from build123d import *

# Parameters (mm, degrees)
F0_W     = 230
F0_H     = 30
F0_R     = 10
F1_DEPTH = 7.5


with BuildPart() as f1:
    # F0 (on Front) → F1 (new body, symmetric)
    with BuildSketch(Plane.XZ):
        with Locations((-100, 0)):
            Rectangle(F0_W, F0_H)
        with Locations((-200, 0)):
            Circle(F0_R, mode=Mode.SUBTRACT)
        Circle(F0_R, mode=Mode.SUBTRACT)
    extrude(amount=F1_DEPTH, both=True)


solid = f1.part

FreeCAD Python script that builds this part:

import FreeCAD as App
import Part
import Sketcher

V = App.Vector


def add_polygon(sketch, points):
    """Adds a closed chain of lines whose ends are joined by coincident constraints."""
    first, n = sketch.GeometryCount, len(points)
    for a, b in zip(points, points[1:] + points[:1]):
        sketch.addGeometry(Part.LineSegment(App.Vector(*a, 0), App.Vector(*b, 0)), False)
    for i in range(n):
        sketch.addConstraint(Sketcher.Constraint("Coincident", first + i, 2, first + (i + 1) % n, 1))

doc = App.newDocument("Part")
body = doc.addObject("PartDesign::Body", "Body")

# Sketch on XZ plane
sketch1 = body.newObject("Sketcher::SketchObject", "Sketch")
sketch1.AttachmentSupport = (doc.getObject("XZ_Plane"), [""])
sketch1.MapMode = "FlatFace"
add_polygon(sketch1, [(-215, 15), (-215, -15), (15, -15), (15, 15)])  # lines 0-3
sketch1.addGeometry(Part.Circle(V(-200, 0, 0), V(0, 0, 1), 10), False)  # 4
sketch1.addGeometry(Part.Circle(V(0, 0, 0), V(0, 0, 1), 10), False)  # 5
sketch1.addConstraint([
    Sketcher.Constraint("Vertical", 0),
    Sketcher.Constraint("Horizontal", 1),
    Sketcher.Constraint("Vertical", 2),
    Sketcher.Constraint("Horizontal", 3),
    Sketcher.Constraint("Coincident", 5, 3, -1, 1),
    Sketcher.Constraint("Equal", 4, 5),
    Sketcher.Constraint("PointOnObject", 4, 3, -1),
    Sketcher.Constraint("Diameter", 4, 20.0),
    Sketcher.Constraint("DistanceX", 1, 1, 1, 2, 230.0),
    Sketcher.Constraint("DistanceY", 0, 2, 0, 1, 30.0),
    Sketcher.Constraint("DistanceX", 4, 3, -1, 1, 200.0),
    Sketcher.Constraint("DistanceX", 0, 2, -1, 1, 215.0),
    Sketcher.Constraint("DistanceY", 0, 2, -1, 1, 15.0),
])
pad1 = body.newObject("PartDesign::Pad", "Pad")
pad1.Profile = sketch1
pad1.Length = 15
pad1.Midplane = True

doc.recompute()
